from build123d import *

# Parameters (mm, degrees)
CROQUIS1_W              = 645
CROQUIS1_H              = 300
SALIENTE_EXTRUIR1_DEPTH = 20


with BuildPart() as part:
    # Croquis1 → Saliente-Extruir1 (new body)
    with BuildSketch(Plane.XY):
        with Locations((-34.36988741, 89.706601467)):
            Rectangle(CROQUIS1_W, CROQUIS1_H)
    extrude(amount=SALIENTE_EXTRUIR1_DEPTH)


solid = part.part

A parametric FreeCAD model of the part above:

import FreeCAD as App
import Part
import Sketcher


def add_polygon(sketch, points):
    """Adds a closed chain of lines whose ends are joined by coincident constraints."""
    first, n = sketch.GeometryCount, len(points)
    for a, b in zip(points, points[1:] + points[:1]):
        sketch.addGeometry(Part.LineSegment(App.Vector(*a, 0), App.Vector(*b, 0)), False)
    for i in range(n):
        sketch.addConstraint(Sketcher.Constraint("Coincident", first + i, 2, first + (i + 1) % n, 1))

doc = App.newDocument("Part")
body = doc.addObject("PartDesign::Body", "Body")

# Sketch on XY plane
sketch1 = body.newObject("Sketcher::SketchObject", "Sketch")
sketch1.AttachmentSupport = (doc.getObject("XY_Plane"), [""])
sketch1.MapMode = "FlatFace"
add_polygon(sketch1, [(-357, 240), (-357, -60), (288, -60), (288, 240)])  # lines 0-3
sketch1.addConstraint([
    Sketcher.Constraint("Vertical", 0),
    Sketcher.Constraint("Horizontal", 1),
    Sketcher.Constraint("Vertical", 2),
    Sketcher.Constraint("Horizontal", 3),
    Sketcher.Constraint("DistanceX", 1, 1, 1, 2, 645.0),
    Sketcher.Constraint("DistanceY", 0, 2, 0, 1, 300.0),
    Sketcher.Constraint("DistanceY", 0, 2, -1, 1, 60.293399),
    Sketcher.Constraint("DistanceX", 0, 2, -1, 1, 356.869887),
])
pad1 = body.newObject("PartDesign::Pad", "Pad")
pad1.Profile = sketch1
pad1.Length = 20

doc.recompute()
